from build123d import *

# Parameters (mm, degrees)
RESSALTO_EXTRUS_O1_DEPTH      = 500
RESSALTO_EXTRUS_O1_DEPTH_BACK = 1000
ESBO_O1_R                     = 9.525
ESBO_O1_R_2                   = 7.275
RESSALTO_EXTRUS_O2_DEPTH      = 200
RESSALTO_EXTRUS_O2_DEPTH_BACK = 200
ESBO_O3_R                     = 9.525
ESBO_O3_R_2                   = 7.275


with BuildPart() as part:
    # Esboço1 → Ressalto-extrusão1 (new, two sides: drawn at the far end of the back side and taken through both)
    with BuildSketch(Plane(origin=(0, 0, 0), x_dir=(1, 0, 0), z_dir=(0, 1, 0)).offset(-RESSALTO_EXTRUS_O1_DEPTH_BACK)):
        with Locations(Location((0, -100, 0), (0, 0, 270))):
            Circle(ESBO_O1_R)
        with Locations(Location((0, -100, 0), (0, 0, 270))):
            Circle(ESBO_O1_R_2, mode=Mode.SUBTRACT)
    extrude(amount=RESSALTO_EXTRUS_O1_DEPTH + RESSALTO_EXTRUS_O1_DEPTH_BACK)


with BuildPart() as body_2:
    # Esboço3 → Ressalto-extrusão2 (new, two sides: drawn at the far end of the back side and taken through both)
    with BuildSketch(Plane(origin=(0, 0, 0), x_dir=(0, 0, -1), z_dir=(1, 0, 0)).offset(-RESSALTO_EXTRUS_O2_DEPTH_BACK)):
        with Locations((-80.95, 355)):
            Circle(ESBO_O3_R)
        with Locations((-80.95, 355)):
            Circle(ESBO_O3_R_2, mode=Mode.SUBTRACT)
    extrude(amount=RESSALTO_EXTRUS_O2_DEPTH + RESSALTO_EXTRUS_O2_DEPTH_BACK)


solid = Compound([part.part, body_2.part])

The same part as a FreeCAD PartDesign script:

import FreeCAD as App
import Part
import Sketcher

V = App.Vector

doc = App.newDocument("Part")
body = doc.addObject("PartDesign::Body", "Body")

# Sketch on XZ plane
sketch1 = body.newObject("Sketcher::SketchObject", "Sketch")
sketch1.AttachmentSupport = (doc.getObject("XZ_Plane"), [""])
sketch1.MapMode = "FlatFace"
sketch1.addGeometry(Part.Circle(V(0, 100, 0), V(0, 0, 1), 10), False)
sketch1.addGeometry(Part.Circle(V(0, 100, 0), V(0, 0, 1), 7), False)
sketch1.addConstraint(Sketcher.Constraint("Coincident", 1, 3, 0, 3))
sketch1.addConstraint(Sketcher.Constraint("PointOnObject", 0, 3, -2))
sketch1.addConstraint(Sketcher.Constraint("Diameter", 0, 19.05))
sketch1.addConstraint(Sketcher.Constraint("Diameter", 1, 14.55))
sketch1.addConstraint(Sketcher.Constraint("DistanceY", -1, 1, 0, 3, 100.0))
pad1 = body.newObject("PartDesign::Pad", "Pad")
pad1.Profile = sketch1
pad1.Type = "TwoLengths"
pad1.Length = 500
pad1.Length2 = 1000
pad1.Reversed = True
body2 = doc.addObject("PartDesign::Body", "Body001")

# Sketch on YZ plane
sketch2 = body2.newObject("Sketcher::SketchObject", "Sketch001")
sketch2.AttachmentSupport = (doc.getObject("YZ_Plane001"), [""])
sketch2.MapMode = "FlatFace"
sketch2.addGeometry(Part.Circle(V(355, 81, 0), V(0, 0, 1), 10), False)
sketch2.addGeometry(Part.Circle(V(355, 81, 0), V(0, 0, 1), 7), False)
sketch2.addConstraint(Sketcher.Constraint("Coincident", 1, 3, 0, 3))
sketch2.addConstraint(Sketcher.Constraint("Diameter", 0, 19.05))
sketch2.addConstraint(Sketcher.Constraint("Diameter", 1, 14.55))
sketch2.addConstraint(Sketcher.Constraint("DistanceX", -1, 1, 0, 3, 355.0))
sketch2.addConstraint(Sketcher.Constraint("DistanceY", -1, 1, 0, 3, 80.95))
pad2 = body2.newObject("PartDesign::Pad", "Pad001")
pad2.Profile = sketch2
pad2.Type = "TwoLengths"
pad2.Length = 200
pad2.Length2 = 200

doc.recompute()
